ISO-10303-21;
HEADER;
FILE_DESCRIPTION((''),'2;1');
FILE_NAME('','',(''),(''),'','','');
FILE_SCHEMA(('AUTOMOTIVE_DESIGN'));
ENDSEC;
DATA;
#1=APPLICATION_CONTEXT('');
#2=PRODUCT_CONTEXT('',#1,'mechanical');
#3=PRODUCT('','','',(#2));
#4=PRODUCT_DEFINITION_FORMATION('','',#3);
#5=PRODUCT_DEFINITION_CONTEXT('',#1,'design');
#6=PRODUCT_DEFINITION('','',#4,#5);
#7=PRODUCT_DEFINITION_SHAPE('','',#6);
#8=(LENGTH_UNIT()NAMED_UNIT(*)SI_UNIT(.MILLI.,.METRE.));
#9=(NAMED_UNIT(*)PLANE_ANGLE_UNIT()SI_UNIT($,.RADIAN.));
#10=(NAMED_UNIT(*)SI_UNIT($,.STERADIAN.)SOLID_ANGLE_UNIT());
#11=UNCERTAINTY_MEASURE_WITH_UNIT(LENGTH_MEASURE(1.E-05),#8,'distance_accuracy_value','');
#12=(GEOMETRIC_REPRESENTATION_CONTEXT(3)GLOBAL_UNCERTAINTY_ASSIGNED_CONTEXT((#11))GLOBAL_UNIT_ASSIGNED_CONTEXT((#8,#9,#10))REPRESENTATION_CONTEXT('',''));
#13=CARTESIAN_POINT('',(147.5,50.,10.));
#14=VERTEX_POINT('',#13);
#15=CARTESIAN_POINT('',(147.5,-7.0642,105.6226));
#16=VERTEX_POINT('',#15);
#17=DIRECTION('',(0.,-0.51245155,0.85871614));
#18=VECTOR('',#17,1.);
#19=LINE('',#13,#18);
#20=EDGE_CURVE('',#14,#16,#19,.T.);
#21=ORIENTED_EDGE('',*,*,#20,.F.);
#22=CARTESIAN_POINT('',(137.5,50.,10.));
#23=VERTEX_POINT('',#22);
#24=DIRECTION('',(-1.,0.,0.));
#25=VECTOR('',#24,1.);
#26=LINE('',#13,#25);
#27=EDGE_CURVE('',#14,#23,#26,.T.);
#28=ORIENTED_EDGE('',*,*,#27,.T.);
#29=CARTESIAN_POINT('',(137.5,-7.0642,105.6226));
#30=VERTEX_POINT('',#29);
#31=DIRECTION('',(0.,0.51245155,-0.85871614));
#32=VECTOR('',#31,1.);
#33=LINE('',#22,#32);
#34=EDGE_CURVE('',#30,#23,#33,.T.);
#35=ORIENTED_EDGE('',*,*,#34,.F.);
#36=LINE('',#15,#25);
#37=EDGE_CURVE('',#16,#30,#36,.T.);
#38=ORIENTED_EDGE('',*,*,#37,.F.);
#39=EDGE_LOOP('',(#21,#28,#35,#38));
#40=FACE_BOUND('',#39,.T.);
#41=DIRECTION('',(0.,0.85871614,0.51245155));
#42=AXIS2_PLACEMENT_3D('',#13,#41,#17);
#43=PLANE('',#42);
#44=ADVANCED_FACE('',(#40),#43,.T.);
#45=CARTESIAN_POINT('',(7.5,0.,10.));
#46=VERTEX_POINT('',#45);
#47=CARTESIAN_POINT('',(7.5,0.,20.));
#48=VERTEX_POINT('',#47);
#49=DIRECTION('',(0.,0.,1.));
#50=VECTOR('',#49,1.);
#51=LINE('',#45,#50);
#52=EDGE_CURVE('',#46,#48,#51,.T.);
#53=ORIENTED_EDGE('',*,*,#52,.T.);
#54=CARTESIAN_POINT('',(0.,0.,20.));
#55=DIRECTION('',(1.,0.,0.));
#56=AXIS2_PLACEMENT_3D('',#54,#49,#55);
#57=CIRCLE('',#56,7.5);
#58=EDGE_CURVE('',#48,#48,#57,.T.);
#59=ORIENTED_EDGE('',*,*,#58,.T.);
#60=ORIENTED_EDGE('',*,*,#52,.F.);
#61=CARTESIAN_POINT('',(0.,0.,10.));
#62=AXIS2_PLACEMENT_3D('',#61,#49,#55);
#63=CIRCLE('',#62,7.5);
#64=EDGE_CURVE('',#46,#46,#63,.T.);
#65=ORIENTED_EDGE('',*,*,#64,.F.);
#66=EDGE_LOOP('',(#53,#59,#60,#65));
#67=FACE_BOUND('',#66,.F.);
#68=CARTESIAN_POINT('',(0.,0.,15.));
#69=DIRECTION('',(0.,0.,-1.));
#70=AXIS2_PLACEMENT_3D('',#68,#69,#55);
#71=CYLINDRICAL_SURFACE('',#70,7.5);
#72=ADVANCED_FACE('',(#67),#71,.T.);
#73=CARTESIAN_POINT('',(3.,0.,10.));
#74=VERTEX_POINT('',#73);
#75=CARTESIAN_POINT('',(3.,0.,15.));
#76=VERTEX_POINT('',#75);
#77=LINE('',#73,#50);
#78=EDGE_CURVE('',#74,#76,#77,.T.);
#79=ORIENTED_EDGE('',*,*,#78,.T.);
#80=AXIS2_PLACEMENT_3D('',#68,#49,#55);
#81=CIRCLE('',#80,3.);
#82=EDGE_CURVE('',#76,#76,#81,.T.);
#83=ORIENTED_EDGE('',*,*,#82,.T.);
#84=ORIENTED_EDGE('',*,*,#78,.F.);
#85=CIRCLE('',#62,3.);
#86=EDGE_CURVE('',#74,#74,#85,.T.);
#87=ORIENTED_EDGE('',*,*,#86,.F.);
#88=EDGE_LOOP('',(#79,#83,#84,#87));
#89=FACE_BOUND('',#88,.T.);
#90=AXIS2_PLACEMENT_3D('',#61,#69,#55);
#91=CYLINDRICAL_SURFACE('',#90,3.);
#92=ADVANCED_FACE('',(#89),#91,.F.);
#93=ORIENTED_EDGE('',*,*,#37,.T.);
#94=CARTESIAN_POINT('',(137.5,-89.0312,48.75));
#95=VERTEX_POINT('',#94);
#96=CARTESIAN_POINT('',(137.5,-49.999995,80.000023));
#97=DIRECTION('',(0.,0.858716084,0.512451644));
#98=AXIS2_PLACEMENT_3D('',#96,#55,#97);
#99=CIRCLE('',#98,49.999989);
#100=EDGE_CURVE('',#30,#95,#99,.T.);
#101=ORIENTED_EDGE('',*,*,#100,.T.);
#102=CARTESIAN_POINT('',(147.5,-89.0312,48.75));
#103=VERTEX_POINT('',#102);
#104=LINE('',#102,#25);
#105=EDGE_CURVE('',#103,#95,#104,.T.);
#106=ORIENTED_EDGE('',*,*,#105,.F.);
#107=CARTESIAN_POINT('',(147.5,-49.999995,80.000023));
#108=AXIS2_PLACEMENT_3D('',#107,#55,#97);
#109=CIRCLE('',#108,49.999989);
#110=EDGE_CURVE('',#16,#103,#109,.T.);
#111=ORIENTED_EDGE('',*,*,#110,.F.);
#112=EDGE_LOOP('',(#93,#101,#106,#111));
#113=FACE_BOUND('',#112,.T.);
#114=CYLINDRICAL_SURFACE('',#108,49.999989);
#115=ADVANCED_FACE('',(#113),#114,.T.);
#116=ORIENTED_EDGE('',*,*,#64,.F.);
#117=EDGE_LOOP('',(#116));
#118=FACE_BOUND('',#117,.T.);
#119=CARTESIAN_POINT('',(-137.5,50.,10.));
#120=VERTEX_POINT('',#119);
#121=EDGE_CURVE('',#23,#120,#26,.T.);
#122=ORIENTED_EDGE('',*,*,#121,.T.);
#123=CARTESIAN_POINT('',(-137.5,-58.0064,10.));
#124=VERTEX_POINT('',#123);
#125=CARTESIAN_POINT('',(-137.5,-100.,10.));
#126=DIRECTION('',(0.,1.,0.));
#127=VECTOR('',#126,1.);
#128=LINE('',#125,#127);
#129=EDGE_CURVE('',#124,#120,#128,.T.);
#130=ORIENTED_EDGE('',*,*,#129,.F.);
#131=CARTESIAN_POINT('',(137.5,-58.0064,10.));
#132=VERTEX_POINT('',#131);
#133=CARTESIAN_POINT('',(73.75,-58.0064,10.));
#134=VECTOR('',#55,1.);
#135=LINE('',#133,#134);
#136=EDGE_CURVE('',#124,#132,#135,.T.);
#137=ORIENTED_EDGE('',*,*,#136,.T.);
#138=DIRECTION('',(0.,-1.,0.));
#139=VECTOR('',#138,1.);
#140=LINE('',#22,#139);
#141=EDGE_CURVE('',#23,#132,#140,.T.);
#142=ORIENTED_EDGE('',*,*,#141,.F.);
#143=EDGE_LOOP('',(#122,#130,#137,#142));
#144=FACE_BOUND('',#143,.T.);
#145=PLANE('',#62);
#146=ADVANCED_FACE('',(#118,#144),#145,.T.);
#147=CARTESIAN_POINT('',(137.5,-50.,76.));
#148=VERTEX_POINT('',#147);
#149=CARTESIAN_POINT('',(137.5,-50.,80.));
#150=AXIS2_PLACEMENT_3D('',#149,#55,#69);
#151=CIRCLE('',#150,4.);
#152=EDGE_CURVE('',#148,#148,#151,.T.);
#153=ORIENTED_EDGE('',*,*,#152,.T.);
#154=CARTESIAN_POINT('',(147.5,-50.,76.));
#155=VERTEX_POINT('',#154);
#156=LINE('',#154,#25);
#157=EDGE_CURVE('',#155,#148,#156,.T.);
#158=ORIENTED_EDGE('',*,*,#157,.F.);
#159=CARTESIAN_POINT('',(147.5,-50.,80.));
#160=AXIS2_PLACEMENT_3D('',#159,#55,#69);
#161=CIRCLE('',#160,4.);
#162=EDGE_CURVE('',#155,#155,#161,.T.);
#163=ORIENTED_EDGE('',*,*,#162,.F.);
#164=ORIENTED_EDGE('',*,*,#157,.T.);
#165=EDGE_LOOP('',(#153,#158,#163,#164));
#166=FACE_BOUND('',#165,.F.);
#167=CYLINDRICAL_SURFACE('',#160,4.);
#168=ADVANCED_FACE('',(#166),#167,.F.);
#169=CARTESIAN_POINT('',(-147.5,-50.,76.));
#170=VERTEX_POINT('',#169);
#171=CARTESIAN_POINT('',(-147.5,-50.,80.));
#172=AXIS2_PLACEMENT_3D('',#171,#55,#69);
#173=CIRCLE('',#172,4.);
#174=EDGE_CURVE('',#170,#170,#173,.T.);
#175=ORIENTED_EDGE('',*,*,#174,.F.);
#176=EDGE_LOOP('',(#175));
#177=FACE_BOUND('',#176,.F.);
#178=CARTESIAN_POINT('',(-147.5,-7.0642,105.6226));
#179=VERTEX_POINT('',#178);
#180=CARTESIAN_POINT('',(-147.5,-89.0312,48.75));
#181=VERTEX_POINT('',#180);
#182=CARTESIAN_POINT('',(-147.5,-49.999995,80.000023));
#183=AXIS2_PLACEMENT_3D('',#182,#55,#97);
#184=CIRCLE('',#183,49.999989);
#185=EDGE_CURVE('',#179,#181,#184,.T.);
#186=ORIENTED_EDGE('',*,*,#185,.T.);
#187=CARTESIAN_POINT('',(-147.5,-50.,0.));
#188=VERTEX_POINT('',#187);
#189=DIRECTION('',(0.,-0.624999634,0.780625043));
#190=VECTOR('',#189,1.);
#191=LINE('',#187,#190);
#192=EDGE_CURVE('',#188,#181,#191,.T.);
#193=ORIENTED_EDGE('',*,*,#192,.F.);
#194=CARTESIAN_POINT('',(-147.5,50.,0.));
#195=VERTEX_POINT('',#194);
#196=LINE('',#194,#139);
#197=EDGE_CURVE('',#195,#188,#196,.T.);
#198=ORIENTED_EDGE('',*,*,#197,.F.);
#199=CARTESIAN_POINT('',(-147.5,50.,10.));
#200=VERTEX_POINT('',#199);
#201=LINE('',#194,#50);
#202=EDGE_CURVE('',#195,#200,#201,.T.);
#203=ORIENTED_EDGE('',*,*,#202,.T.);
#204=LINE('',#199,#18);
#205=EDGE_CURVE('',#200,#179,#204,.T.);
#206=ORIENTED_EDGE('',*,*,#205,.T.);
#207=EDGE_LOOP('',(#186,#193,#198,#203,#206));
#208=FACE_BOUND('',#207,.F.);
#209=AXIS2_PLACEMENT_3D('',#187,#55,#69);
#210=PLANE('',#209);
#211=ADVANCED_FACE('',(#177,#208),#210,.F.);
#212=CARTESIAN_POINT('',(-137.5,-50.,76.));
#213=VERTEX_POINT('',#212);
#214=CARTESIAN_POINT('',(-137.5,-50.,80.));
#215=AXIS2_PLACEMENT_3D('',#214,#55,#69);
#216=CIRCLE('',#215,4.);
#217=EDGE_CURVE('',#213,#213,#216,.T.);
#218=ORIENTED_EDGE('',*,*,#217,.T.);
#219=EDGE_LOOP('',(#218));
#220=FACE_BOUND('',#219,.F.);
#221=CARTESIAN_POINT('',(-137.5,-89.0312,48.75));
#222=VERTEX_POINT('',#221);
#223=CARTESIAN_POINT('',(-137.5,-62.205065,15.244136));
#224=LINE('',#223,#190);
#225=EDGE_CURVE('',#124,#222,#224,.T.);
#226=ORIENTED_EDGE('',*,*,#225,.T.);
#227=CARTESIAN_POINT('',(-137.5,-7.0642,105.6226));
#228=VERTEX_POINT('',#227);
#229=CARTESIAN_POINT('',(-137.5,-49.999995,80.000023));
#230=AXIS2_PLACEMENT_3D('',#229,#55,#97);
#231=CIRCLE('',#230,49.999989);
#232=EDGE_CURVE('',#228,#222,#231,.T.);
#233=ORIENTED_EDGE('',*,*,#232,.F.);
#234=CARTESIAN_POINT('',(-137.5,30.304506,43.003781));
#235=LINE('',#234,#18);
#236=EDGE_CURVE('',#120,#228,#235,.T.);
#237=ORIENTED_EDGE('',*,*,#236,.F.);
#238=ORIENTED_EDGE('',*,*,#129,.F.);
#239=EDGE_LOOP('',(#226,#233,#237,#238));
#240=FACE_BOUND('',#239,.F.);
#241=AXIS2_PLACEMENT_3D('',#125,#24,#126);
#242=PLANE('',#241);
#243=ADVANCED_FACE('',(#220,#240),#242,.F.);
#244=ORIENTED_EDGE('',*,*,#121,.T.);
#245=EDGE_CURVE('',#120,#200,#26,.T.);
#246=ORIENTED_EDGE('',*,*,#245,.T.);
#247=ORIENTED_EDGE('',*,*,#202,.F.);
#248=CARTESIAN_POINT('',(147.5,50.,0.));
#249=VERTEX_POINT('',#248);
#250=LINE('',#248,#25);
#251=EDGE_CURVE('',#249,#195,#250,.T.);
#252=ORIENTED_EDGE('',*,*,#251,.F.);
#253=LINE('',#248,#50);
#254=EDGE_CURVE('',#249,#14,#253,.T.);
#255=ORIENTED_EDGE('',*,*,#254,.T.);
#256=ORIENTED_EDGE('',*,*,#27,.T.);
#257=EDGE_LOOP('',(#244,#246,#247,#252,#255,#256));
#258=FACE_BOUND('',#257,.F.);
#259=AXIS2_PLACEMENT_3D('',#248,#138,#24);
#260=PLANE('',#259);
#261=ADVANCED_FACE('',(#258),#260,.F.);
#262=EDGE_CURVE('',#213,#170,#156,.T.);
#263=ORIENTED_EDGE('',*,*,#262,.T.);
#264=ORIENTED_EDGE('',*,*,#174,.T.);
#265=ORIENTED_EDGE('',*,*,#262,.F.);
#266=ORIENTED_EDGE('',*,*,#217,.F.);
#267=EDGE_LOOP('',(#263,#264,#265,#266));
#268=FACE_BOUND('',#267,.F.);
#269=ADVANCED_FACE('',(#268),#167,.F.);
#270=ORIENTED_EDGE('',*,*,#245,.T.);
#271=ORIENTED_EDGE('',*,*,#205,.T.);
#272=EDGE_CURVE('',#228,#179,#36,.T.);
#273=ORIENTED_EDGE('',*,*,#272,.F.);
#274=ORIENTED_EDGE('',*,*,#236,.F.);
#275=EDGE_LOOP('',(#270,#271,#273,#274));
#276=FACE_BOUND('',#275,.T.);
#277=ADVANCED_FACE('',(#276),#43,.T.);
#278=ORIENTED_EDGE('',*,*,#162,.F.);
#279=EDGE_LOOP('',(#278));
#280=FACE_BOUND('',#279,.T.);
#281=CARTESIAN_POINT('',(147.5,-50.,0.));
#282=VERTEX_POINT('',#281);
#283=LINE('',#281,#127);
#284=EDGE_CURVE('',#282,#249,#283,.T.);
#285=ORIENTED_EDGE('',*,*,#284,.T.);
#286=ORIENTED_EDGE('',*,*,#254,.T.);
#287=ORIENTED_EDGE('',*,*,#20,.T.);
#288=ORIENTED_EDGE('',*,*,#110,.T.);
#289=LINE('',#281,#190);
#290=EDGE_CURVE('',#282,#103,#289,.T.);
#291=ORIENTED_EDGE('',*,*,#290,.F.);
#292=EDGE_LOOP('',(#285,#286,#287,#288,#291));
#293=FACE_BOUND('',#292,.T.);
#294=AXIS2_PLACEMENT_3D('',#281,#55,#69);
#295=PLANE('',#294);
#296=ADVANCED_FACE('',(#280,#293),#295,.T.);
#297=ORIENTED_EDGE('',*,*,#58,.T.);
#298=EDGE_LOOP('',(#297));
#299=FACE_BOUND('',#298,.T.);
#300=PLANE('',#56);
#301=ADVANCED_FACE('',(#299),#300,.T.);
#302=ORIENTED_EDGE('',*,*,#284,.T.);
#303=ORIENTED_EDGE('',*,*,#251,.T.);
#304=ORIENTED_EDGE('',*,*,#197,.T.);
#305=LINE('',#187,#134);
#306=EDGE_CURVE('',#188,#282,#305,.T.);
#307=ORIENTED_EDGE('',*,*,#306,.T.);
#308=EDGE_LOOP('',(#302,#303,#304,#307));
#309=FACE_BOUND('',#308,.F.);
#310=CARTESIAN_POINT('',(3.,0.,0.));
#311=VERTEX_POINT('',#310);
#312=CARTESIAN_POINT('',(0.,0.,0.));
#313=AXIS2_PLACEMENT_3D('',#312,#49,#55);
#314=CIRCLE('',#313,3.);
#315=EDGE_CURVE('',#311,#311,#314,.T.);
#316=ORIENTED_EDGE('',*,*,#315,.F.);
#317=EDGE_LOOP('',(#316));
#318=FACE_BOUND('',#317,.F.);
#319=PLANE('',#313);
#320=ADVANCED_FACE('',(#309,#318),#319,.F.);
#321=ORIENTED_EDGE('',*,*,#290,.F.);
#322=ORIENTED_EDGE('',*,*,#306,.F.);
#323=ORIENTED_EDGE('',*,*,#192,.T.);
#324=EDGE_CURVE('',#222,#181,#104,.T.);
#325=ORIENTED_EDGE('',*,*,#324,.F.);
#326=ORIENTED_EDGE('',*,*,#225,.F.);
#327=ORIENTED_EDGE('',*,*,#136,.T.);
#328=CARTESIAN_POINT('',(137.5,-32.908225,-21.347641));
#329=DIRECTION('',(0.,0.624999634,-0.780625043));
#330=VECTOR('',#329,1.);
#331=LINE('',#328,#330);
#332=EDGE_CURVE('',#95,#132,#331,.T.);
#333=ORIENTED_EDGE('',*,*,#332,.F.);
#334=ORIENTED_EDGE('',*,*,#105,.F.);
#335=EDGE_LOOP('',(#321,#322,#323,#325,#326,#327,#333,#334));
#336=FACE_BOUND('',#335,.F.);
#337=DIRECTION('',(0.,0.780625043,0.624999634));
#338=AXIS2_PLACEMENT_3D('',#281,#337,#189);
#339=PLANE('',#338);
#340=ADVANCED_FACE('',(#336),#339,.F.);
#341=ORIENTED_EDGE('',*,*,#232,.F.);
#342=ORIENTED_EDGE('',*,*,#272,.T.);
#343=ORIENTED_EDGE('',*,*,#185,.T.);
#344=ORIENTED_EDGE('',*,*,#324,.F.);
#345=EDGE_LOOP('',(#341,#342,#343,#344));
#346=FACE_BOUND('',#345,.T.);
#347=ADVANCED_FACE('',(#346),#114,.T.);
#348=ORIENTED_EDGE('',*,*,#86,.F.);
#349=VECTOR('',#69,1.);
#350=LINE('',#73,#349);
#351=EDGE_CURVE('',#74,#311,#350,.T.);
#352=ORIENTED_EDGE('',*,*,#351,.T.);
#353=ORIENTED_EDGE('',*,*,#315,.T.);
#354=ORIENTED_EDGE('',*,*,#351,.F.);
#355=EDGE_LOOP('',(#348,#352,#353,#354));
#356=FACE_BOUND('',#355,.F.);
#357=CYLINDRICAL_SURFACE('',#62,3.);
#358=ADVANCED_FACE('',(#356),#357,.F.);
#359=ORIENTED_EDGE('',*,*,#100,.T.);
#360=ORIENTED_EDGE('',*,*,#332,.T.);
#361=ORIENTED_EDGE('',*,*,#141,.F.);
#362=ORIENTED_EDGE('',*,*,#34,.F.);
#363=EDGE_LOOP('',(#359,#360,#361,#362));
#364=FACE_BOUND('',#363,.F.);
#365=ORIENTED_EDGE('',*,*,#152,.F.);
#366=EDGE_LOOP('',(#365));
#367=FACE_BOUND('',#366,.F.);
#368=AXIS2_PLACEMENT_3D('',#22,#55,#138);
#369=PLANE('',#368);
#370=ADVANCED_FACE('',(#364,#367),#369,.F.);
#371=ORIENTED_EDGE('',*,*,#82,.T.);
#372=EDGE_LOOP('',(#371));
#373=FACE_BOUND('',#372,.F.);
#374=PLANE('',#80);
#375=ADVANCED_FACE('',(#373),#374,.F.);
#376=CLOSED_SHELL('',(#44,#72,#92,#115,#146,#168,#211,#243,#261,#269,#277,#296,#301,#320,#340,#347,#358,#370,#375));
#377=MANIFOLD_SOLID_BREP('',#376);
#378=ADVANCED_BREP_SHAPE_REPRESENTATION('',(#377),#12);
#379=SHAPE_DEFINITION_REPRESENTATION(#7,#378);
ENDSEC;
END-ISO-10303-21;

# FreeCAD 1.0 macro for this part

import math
import FreeCAD as App
import Part
import Sketcher
from FreeCAD import Vector


def add_polygon(sketch, points):
    """Adds a closed chain of lines whose ends are joined by coincident constraints."""
    first, n = sketch.GeometryCount, len(points)
    for a, b in zip(points, points[1:] + points[:1]):
        sketch.addGeometry(Part.LineSegment(App.Vector(*a, 0), App.Vector(*b, 0)), False)
    for i in range(n):
        sketch.addConstraint(Sketcher.Constraint("Coincident", first + i, 2, first + (i + 1) % n, 1))

doc = App.newDocument("Part")
body = doc.addObject("PartDesign::Body", "Body")

# Sketch on XY plane
sketch1 = body.newObject("Sketcher::SketchObject", "Sketch")
sketch1.AttachmentSupport = (doc.getObject("XY_Plane"), [""])
sketch1.MapMode = "FlatFace"
add_polygon(sketch1, [(-148, 50), (-148, -50), (148, -50), (148, 50)])  # lines 0-3
sketch1.addConstraint([
    Sketcher.Constraint("Vertical", 0),
    Sketcher.Constraint("Horizontal", 1),
    Sketcher.Constraint("Vertical", 2),
    Sketcher.Constraint("Horizontal", 3),
    Sketcher.Constraint("Symmetric", 0, 2, 2, 2, -1, 1),
    Sketcher.Constraint("DistanceX", 1, 1, 1, 2, 295.0),
    Sketcher.Constraint("DistanceY", 0, 2, 0, 1, 100.0),
])
pad1 = body.newObject("PartDesign::Pad", "Pad")
pad1.Profile = sketch1
pad1.Length = 10

# Sketch on XY plane
sketch2 = body.newObject("Sketcher::SketchObject", "Sketch001")
sketch2.AttachmentSupport = (doc.getObject("XY_Plane"), [""])
sketch2.MapMode = "FlatFace"
sketch2.AttachmentOffset = App.Placement(Vector(0, 0, 10), App.Rotation())
sketch2.addGeometry(Part.Circle(Vector(0, 0, 0), Vector(0, 0, 1), 3), False)
sketch2.addConstraint([
    Sketcher.Constraint("Coincident", 0, 3, -1, 1),
    Sketcher.Constraint("Diameter", 0, 6.0),
])
pocket1 = body.newObject("PartDesign::Pocket", "Pocket")
pocket1.Profile = sketch2
pocket1.Type = "ThroughAll"

# Sketch on YZ plane
sketch3 = body.newObject("Sketcher::SketchObject", "Sketch002")
sketch3.AttachmentSupport = (doc.getObject("YZ_Plane"), [""])
sketch3.MapMode = "FlatFace"
sketch3.AttachmentOffset = App.Placement(Vector(0, 0, 147.5), App.Rotation())
sketch3.addGeometry([
    Part.LineSegment(Vector(-89, 49, 0), Vector(-50, 0, 0)),  # 0
    Part.LineSegment(Vector(-50, 0, 0), Vector(-50, 10, 0)),  # 1
    Part.LineSegment(Vector(-50, 10, 0), Vector(50, 10, 0)),  # 2
    Part.LineSegment(Vector(50, 10, 0), Vector(-7, 106, 0)),  # 3
    Part.ArcOfCircle(Part.Circle(Vector(-50, 80, 0), Vector(0, 0, 1), 50), math.radians(31), math.radians(219)),  # 4
], False)
sketch3.addConstraint([
    Sketcher.Constraint("Coincident", 0, 2, 1, 1),
    Sketcher.Constraint("Coincident", 1, 2, 2, 1),
    Sketcher.Constraint("Coincident", 2, 2, 3, 1),
    Sketcher.Constraint("Tangent", 3, 2, 4, 1),
    Sketcher.Constraint("Tangent", 4, 2, 0, 1),
    Sketcher.Constraint("Vertical", 1),
    Sketcher.Constraint("Horizontal", 2),
    Sketcher.Constraint("PointOnObject", 0, 2, -1),
    Sketcher.Constraint("Vertical", 4, 3, 0, 2),
    Sketcher.Constraint("Radius", 4, 50.0),
    Sketcher.Constraint("DistanceX", 2, 1, 2, 2, 100.0),
    Sketcher.Constraint("DistanceY", -1, 1, 4, 3, 80.0),
    Sketcher.Constraint("DistanceY", 1, 1, 1, 2, 10.0),
    Sketcher.Constraint("DistanceX", 4, 3, -1, 1, 50.0),
])
pad2 = body.newObject("PartDesign::Pad", "Pad001")
pad2.Profile = sketch3
pad2.Length = 295
pad2.Reversed = True

# Sketch on XY plane
sketch4 = body.newObject("Sketcher::SketchObject", "Sketch003")
sketch4.AttachmentSupport = (doc.getObject("XY_Plane"), [""])
sketch4.MapMode = "FlatFace"
sketch4.AttachmentOffset = App.Placement(Vector(0, 0, 10), App.Rotation())
add_polygon(sketch4, [(138, -100), (138, 50), (-138, 50), (-138, -100)])  # lines 0-3
sketch4.addConstraint([
    Sketcher.Constraint("Vertical", 0),
    Sketcher.Constraint("Horizontal", 1),
    Sketcher.Constraint("Vertical", 2),
    Sketcher.Constraint("Horizontal", 3),
    Sketcher.Constraint("DistanceX", 1, 2, 1, 1, 275.0),
    Sketcher.Constraint("DistanceY", 0, 1, 0, 2, 150.0),
    Sketcher.Constraint("DistanceY", -1, 1, 0, 2, 50.0),
    Sketcher.Constraint("DistanceX", -1, 1, 0, 2, 137.5),
])
pocket2 = body.newObject("PartDesign::Pocket", "Pocket001")
pocket2.Profile = sketch4
pocket2.Type = "ThroughAll"
pocket2.Reversed = True

# Sketch on XY plane
sketch5 = body.newObject("Sketcher::SketchObject", "Sketch004")
sketch5.AttachmentSupport = (doc.getObject("XY_Plane"), [""])
sketch5.MapMode = "FlatFace"
sketch5.AttachmentOffset = App.Placement(Vector(0, 0, 10), App.Rotation())
sketch5.addGeometry([
    Part.Circle(Vector(0, 0, 0), Vector(0, 0, 1), 7.5),
    Part.Circle(Vector(0, 0, 0), Vector(0, 0, 1), 3),
], False)
sketch5.addConstraint([
    Sketcher.Constraint("Coincident", 0, 3, -1, 1),
    Sketcher.Constraint("Coincident", 1, 3, -1, 1),
    Sketcher.Constraint("Diameter", 0, 15.0),
    Sketcher.Constraint("Diameter", 1, 6.0),
])
pad3 = body.newObject("PartDesign::Pad", "Pad002")
pad3.Profile = sketch5
pad3.Length = 5

# Sketch on XY plane
sketch6 = body.newObject("Sketcher::SketchObject", "Sketch005")
sketch6.AttachmentSupport = (doc.getObject("XY_Plane"), [""])
sketch6.MapMode = "FlatFace"
sketch6.AttachmentOffset = App.Placement(Vector(0, 0, 15), App.Rotation())
sketch6.addGeometry(Part.Circle(Vector(0, 0, 0), Vector(0, 0, 1), 8), False)
sketch6.addConstraint([
    Sketcher.Constraint("Coincident", 0, 3, -1, 1),
    Sketcher.Constraint("Diameter", 0, 15.0),
])
pad4 = body.newObject("PartDesign::Pad", "Pad003")
pad4.Profile = sketch6
pad4.Length = 5

# Sketch on YZ plane
sketch7 = body.newObject("Sketcher::SketchObject", "Sketch006")
sketch7.AttachmentSupport = (doc.getObject("YZ_Plane"), [""])
sketch7.MapMode = "FlatFace"
sketch7.AttachmentOffset = App.Placement(Vector(0, 0, 147.5), App.Rotation())
sketch7.addGeometry(Part.Circle(Vector(-50, 80, 0), Vector(0, 0, 1), 4), False)
sketch7.addConstraint([
    Sketcher.Constraint("Diameter", 0, 8.0),
    Sketcher.Constraint("DistanceX", 0, 3, -1, 1, 50.0),
    Sketcher.Constraint("DistanceY", -1, 1, 0, 3, 80.0),
])
pocket3 = body.newObject("PartDesign::Pocket", "Pocket002")
pocket3.Profile = sketch7
pocket3.Type = "ThroughAll"

doc.recompute()
